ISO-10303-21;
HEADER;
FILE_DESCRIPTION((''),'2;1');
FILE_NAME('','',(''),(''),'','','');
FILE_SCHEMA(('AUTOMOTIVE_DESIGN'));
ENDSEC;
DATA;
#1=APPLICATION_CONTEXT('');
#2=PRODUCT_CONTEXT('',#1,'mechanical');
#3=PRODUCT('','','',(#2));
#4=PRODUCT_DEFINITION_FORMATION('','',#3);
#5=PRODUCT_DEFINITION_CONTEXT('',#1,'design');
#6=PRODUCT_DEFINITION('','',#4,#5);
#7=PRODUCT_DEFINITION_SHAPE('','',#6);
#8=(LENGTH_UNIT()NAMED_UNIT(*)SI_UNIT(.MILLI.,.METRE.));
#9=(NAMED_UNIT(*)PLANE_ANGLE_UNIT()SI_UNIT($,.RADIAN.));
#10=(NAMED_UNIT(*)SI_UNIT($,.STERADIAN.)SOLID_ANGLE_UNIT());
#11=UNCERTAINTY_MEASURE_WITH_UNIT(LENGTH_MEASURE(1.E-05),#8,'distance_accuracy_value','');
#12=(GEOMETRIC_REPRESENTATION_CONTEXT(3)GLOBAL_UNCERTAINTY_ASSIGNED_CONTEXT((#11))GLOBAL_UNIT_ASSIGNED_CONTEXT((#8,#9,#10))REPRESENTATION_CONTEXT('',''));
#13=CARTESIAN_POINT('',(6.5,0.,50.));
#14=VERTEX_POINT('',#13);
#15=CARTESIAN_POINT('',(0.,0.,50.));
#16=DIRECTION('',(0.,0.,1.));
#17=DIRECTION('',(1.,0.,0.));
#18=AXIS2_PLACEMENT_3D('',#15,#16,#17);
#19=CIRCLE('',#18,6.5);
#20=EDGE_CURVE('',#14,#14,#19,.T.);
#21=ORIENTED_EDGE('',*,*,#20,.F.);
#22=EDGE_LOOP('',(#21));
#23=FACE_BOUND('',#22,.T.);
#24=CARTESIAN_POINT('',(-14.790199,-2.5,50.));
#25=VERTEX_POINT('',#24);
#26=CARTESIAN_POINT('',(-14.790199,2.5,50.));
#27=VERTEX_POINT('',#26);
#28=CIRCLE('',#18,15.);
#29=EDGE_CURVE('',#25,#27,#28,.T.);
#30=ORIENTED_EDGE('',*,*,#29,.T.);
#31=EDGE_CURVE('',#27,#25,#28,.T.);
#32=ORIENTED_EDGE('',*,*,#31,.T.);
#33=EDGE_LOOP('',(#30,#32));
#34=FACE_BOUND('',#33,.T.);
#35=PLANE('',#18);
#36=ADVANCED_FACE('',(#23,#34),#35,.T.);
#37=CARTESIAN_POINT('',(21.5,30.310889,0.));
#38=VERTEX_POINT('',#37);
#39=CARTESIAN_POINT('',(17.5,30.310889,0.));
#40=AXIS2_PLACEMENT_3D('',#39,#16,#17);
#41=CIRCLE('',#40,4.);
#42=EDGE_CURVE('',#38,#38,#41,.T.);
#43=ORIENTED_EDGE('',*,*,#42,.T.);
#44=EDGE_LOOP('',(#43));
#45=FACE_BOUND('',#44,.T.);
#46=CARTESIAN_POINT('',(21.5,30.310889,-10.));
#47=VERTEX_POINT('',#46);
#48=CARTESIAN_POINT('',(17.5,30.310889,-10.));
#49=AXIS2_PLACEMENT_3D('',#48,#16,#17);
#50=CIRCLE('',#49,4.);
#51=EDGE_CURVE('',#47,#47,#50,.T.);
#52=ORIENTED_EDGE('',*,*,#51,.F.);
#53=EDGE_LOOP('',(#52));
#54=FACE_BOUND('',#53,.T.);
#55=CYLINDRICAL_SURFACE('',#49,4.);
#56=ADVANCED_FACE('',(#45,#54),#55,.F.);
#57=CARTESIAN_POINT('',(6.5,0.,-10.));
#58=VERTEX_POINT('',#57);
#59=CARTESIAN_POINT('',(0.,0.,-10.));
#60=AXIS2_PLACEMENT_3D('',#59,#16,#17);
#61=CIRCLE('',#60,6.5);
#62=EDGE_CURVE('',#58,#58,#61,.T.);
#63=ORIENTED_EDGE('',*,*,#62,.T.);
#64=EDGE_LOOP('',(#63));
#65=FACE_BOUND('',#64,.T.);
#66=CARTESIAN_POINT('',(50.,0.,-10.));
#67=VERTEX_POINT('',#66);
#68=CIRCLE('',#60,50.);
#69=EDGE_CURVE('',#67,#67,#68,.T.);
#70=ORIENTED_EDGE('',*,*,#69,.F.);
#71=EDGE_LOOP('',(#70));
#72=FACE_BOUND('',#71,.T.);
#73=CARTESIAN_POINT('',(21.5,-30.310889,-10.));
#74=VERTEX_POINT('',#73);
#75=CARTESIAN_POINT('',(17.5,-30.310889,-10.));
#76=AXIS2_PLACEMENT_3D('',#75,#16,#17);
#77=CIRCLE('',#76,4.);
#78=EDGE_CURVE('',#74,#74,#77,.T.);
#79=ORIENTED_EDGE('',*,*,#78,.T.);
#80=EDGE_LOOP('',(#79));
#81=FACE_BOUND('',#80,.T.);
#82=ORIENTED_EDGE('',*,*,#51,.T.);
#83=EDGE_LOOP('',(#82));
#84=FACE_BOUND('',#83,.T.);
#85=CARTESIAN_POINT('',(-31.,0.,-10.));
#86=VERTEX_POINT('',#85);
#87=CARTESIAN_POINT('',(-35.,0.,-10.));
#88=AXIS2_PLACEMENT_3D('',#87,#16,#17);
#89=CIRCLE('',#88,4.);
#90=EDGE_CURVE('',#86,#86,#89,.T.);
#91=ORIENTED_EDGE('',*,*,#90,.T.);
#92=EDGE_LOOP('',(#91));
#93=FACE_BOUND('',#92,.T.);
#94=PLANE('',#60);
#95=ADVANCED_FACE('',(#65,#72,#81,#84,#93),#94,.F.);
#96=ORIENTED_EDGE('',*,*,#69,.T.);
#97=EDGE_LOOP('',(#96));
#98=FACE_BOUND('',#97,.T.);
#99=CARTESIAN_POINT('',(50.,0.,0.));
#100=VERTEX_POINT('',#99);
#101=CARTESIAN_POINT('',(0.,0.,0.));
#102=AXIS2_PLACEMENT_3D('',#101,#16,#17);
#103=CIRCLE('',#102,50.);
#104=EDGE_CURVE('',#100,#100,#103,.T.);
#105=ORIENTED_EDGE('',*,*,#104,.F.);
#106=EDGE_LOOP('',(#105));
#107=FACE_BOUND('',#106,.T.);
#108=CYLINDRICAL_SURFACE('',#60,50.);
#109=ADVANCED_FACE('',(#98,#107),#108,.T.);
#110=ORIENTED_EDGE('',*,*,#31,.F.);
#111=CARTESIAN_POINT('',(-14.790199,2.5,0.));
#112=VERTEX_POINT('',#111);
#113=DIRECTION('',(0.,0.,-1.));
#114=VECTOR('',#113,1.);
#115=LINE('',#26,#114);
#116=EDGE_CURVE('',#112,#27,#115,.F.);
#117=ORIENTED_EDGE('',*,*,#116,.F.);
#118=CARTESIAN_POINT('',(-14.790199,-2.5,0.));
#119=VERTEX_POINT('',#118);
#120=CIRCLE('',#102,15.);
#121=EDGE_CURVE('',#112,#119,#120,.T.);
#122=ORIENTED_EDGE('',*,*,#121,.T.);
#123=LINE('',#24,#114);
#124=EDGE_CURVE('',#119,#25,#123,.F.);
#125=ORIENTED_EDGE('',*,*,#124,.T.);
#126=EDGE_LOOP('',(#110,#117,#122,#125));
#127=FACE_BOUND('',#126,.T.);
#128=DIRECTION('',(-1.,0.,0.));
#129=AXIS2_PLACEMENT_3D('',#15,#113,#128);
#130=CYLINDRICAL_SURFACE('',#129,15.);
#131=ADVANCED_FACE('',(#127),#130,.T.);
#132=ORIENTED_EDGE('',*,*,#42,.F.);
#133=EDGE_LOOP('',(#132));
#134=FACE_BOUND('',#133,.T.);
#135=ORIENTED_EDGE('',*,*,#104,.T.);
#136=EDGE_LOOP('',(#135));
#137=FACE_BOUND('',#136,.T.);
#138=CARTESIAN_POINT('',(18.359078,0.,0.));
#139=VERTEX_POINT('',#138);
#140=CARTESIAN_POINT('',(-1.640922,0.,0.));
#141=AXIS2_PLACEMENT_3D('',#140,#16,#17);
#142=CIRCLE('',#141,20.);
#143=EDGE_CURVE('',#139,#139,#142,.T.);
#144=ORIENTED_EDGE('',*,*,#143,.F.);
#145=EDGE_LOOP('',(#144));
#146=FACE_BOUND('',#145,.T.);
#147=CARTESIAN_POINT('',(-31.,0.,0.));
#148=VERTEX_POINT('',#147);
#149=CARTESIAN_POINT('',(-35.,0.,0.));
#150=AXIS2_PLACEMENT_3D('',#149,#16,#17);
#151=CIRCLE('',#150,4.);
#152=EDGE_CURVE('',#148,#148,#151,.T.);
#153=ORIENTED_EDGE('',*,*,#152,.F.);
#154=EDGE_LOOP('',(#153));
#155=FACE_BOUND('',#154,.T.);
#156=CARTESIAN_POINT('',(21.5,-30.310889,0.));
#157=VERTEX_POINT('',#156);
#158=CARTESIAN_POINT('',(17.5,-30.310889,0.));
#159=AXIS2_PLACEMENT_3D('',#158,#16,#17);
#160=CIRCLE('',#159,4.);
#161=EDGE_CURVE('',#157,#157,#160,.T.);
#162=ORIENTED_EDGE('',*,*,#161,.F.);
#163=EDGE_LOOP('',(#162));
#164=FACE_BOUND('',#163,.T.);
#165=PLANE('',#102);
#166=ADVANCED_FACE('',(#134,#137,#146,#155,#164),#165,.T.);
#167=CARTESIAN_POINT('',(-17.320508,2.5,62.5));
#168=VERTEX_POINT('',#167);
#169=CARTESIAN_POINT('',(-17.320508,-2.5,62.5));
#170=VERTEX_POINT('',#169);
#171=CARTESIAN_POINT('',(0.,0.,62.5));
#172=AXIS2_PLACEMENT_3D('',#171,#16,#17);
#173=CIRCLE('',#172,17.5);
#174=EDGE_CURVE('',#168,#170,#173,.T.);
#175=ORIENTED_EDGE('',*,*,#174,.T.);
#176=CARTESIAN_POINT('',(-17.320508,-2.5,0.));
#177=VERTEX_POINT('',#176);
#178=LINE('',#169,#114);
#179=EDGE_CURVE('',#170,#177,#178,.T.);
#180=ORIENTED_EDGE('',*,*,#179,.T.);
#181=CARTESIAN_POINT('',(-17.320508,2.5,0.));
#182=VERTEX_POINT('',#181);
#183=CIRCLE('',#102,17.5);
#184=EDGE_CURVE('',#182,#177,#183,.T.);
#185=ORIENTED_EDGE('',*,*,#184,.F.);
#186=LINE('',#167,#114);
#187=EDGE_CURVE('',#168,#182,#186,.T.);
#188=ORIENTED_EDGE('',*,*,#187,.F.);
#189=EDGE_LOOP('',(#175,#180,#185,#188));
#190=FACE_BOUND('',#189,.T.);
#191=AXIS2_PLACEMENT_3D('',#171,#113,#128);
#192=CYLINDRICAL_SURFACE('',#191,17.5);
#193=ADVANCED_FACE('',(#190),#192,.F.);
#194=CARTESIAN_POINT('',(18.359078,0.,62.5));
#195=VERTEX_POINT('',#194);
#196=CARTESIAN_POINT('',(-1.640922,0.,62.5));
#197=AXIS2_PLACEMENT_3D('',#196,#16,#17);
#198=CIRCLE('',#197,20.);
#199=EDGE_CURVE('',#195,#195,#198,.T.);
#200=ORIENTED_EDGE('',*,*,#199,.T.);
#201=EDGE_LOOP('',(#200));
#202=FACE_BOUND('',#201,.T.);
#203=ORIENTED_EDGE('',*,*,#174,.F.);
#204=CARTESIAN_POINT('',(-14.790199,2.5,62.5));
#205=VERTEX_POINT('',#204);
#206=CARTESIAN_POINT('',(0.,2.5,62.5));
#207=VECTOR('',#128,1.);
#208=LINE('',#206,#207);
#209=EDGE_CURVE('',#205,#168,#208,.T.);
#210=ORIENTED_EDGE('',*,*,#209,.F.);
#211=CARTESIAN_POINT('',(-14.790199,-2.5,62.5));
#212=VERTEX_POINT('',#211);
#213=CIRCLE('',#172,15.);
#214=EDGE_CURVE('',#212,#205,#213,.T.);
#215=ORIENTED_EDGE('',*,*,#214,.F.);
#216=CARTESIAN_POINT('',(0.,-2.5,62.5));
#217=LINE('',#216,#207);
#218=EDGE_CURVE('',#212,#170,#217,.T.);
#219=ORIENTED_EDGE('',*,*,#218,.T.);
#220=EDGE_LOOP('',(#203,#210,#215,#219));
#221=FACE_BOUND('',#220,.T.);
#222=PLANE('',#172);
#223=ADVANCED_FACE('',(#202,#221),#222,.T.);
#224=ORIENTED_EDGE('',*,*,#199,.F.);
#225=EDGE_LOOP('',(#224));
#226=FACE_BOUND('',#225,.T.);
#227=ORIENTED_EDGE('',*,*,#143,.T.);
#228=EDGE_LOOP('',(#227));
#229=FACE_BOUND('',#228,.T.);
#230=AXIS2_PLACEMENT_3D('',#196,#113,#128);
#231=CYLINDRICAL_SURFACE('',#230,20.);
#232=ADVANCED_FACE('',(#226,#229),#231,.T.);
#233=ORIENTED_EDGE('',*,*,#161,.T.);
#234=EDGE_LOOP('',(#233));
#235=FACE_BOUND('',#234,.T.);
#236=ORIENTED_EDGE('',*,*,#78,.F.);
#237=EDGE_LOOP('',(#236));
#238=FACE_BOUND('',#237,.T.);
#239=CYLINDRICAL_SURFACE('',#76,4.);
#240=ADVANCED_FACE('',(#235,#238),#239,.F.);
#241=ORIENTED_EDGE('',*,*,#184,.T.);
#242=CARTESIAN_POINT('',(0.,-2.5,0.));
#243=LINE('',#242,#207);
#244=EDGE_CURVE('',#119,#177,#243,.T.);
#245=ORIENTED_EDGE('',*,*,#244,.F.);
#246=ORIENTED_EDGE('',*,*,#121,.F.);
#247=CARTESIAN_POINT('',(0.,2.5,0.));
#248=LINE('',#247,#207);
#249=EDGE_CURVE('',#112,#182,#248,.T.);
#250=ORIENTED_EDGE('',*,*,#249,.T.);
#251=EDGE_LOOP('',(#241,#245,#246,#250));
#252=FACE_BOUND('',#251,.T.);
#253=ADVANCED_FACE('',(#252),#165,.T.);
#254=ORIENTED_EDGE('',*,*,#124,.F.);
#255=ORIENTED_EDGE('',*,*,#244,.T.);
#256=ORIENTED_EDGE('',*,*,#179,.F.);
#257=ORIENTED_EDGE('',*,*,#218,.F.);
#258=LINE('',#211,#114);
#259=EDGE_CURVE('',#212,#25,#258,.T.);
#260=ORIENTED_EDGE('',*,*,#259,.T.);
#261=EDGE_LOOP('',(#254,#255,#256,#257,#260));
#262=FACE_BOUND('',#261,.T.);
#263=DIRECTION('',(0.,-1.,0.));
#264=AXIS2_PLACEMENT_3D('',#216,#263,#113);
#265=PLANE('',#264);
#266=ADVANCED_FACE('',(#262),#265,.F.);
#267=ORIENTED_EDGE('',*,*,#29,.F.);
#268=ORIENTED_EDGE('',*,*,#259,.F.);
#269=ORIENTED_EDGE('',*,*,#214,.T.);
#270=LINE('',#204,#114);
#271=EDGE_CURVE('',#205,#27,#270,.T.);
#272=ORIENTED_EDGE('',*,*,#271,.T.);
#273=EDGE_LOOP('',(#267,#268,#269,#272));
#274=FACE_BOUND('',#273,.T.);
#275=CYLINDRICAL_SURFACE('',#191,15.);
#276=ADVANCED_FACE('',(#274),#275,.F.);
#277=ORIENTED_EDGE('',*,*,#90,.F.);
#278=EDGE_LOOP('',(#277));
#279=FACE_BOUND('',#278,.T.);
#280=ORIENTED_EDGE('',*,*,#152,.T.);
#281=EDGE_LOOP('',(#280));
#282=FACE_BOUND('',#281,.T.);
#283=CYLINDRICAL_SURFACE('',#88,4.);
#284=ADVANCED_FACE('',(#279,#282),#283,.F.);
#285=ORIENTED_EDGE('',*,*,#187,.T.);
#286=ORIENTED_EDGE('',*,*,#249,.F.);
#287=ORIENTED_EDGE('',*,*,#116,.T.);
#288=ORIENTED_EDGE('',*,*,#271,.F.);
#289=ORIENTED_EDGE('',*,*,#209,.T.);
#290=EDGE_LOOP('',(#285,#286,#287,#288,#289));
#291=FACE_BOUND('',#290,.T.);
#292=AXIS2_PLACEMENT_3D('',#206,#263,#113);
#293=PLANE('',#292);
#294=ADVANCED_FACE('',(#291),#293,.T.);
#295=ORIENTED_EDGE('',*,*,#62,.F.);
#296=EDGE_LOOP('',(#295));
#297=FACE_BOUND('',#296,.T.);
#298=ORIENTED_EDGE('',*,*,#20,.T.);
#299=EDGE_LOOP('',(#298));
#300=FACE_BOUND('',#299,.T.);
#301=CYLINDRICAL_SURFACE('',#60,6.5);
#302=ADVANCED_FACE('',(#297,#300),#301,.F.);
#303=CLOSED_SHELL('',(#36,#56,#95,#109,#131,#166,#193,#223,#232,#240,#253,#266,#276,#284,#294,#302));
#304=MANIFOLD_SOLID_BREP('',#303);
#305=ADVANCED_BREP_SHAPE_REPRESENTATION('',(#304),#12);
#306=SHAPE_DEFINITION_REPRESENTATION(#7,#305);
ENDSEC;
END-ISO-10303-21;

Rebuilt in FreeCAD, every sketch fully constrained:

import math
import FreeCAD as App
import Part
import Sketcher

V = App.Vector
Q = App.Units.Quantity

doc = App.newDocument("Part")
body = doc.addObject("PartDesign::Body", "Body")

# Sketch on XY plane
sketch1 = body.newObject("Sketcher::SketchObject", "Sketch")
sketch1.AttachmentSupport = (doc.getObject("XY_Plane"), [""])
sketch1.MapMode = "FlatFace"
sketch1.addGeometry(Part.Circle(V(0, 0, 0), V(0, 0, 1), 50), False)
sketch1.addConstraint(Sketcher.Constraint("Coincident", 0, 3, -1, 1))
sketch1.addConstraint(Sketcher.Constraint("Diameter", 0, Q("100 mm")))
pad1 = body.newObject("PartDesign::Pad", "Pad")
pad1.Profile = sketch1
pad1.Length = 10
pad1.Reversed = True

# Sketch on XY plane
sketch2 = body.newObject("Sketcher::SketchObject", "Sketch001")
sketch2.AttachmentSupport = (doc.getObject("XY_Plane"), [""])
sketch2.MapMode = "FlatFace"
sketch2.addGeometry(Part.Circle(V(-35, 0, 0), V(0, 0, 1), 4), False)
sketch2.addGeometry(Part.Circle(V(17.5, 30.310889, 0), V(0, 0, 1), 4), False)
sketch2.addGeometry(Part.Circle(V(17.5, -30.310889, 0), V(0, 0, 1), 4), False)
sketch2.addConstraint(Sketcher.Constraint("Equal", 0, 1))
sketch2.addConstraint(Sketcher.Constraint("Equal", 1, 2))
sketch2.addConstraint(Sketcher.Constraint("Symmetric", 1, 3, 2, 3, -1))
sketch2.addConstraint(Sketcher.Constraint("PointOnObject", 0, 3, -1))
sketch2.addConstraint(Sketcher.Constraint("Diameter", 0, Q("8 mm")))
sketch2.addConstraint(Sketcher.Constraint("DistanceX", 0, 3, -1, 1, Q("35 mm")))
sketch2.addConstraint(Sketcher.Constraint("DistanceX", -1, 1, 1, 3, Q("17.5 mm")))
sketch2.addConstraint(Sketcher.Constraint("DistanceY", -1, 1, 1, 3, Q("30.310889 mm")))
pocket1 = body.newObject("PartDesign::Pocket", "Pocket")
pocket1.Profile = sketch2
pocket1.Length = 10

# Sketch on XY plane
sketch3 = body.newObject("Sketcher::SketchObject", "Sketch002")
sketch3.AttachmentSupport = (doc.getObject("XY_Plane"), [""])
sketch3.MapMode = "FlatFace"
sketch3.addGeometry(Part.Circle(V(-1.640922, 0, 0), V(0, 0, 1), 20), False)
sketch3.addGeometry(Part.ArcOfCircle(Part.Circle(V(0, 0, 0), V(0, 0, 1), 17.5), math.radians(171.786789), math.radians(188.213211)), False)
sketch3.addGeometry(Part.LineSegment(V(-17.320508, 2.5, 0), V(-14.790199, 2.5, 0)), False)
sketch3.addGeometry(Part.ArcOfCircle(Part.Circle(V(0, 0, 0), V(0, 0, 1), 15), math.radians(-170.405932), math.radians(170.405932)), False)
sketch3.addGeometry(Part.LineSegment(V(-14.790199, -2.5, 0), V(-17.320508, -2.5, 0)), False)
sketch3.addConstraint(Sketcher.Constraint("Coincident", 1, 1, 2, 1))
sketch3.addConstraint(Sketcher.Constraint("Coincident", 2, 2, 3, 2))
sketch3.addConstraint(Sketcher.Constraint("Coincident", 3, 1, 4, 1))
sketch3.addConstraint(Sketcher.Constraint("Coincident", 4, 2, 1, 2))
sketch3.addConstraint(Sketcher.Constraint("Horizontal", 2))
sketch3.addConstraint(Sketcher.Constraint("Horizontal", 4))
sketch3.addConstraint(Sketcher.Constraint("Coincident", 1, 3, -1, 1))
sketch3.addConstraint(Sketcher.Constraint("Coincident", 3, 3, -1, 1))
sketch3.addConstraint(Sketcher.Constraint("PointOnObject", 0, 3, -1))
sketch3.addConstraint(Sketcher.Constraint("Vertical", 2, 2, 3, 1))
sketch3.addConstraint(Sketcher.Constraint("Diameter", 0, Q("40 mm")))
sketch3.addConstraint(Sketcher.Constraint("Radius", 3, Q("15 mm")))
sketch3.addConstraint(Sketcher.Constraint("Radius", 1, Q("17.5 mm")))
sketch3.addConstraint(Sketcher.Constraint("DistanceY", 3, 1, 2, 2, Q("5 mm")))
sketch3.addConstraint(Sketcher.Constraint("DistanceX", 0, 3, -1, 1, Q("1.640922 mm")))
pad2 = body.newObject("PartDesign::Pad", "Pad001")
pad2.Profile = sketch3
pad2.Length = 62.5

# Sketch on XY plane
sketch4 = body.newObject("Sketcher::SketchObject", "Sketch003")
sketch4.AttachmentSupport = (doc.getObject("XY_Plane"), [""])
sketch4.MapMode = "FlatFace"
sketch4.addGeometry(Part.Circle(V(0, 0, 0), V(0, 0, 1), 15), False)
sketch4.addConstraint(Sketcher.Constraint("Coincident", 0, 3, -1, 1))
sketch4.addConstraint(Sketcher.Constraint("Diameter", 0, Q("30 mm")))
pad3 = body.newObject("PartDesign::Pad", "Pad002")
pad3.Profile = sketch4
pad3.Length = 50

# Sketch on XY plane
sketch5 = body.newObject("Sketcher::SketchObject", "Sketch004")
sketch5.AttachmentSupport = (doc.getObject("XY_Plane"), [""])
sketch5.MapMode = "FlatFace"
sketch5.addGeometry(Part.Circle(V(0, 0, 0), V(0, 0, 1), 6.5), False)
sketch5.addConstraint(Sketcher.Constraint("Coincident", 0, 3, -1, 1))
sketch5.addConstraint(Sketcher.Constraint("Diameter", 0, Q("13 mm")))
pocket2 = body.newObject("PartDesign::Pocket", "Pocket001")
pocket2.Profile = sketch5
pocket2.Type = "ThroughAll"
pocket2.Midplane = True

doc.recompute()
